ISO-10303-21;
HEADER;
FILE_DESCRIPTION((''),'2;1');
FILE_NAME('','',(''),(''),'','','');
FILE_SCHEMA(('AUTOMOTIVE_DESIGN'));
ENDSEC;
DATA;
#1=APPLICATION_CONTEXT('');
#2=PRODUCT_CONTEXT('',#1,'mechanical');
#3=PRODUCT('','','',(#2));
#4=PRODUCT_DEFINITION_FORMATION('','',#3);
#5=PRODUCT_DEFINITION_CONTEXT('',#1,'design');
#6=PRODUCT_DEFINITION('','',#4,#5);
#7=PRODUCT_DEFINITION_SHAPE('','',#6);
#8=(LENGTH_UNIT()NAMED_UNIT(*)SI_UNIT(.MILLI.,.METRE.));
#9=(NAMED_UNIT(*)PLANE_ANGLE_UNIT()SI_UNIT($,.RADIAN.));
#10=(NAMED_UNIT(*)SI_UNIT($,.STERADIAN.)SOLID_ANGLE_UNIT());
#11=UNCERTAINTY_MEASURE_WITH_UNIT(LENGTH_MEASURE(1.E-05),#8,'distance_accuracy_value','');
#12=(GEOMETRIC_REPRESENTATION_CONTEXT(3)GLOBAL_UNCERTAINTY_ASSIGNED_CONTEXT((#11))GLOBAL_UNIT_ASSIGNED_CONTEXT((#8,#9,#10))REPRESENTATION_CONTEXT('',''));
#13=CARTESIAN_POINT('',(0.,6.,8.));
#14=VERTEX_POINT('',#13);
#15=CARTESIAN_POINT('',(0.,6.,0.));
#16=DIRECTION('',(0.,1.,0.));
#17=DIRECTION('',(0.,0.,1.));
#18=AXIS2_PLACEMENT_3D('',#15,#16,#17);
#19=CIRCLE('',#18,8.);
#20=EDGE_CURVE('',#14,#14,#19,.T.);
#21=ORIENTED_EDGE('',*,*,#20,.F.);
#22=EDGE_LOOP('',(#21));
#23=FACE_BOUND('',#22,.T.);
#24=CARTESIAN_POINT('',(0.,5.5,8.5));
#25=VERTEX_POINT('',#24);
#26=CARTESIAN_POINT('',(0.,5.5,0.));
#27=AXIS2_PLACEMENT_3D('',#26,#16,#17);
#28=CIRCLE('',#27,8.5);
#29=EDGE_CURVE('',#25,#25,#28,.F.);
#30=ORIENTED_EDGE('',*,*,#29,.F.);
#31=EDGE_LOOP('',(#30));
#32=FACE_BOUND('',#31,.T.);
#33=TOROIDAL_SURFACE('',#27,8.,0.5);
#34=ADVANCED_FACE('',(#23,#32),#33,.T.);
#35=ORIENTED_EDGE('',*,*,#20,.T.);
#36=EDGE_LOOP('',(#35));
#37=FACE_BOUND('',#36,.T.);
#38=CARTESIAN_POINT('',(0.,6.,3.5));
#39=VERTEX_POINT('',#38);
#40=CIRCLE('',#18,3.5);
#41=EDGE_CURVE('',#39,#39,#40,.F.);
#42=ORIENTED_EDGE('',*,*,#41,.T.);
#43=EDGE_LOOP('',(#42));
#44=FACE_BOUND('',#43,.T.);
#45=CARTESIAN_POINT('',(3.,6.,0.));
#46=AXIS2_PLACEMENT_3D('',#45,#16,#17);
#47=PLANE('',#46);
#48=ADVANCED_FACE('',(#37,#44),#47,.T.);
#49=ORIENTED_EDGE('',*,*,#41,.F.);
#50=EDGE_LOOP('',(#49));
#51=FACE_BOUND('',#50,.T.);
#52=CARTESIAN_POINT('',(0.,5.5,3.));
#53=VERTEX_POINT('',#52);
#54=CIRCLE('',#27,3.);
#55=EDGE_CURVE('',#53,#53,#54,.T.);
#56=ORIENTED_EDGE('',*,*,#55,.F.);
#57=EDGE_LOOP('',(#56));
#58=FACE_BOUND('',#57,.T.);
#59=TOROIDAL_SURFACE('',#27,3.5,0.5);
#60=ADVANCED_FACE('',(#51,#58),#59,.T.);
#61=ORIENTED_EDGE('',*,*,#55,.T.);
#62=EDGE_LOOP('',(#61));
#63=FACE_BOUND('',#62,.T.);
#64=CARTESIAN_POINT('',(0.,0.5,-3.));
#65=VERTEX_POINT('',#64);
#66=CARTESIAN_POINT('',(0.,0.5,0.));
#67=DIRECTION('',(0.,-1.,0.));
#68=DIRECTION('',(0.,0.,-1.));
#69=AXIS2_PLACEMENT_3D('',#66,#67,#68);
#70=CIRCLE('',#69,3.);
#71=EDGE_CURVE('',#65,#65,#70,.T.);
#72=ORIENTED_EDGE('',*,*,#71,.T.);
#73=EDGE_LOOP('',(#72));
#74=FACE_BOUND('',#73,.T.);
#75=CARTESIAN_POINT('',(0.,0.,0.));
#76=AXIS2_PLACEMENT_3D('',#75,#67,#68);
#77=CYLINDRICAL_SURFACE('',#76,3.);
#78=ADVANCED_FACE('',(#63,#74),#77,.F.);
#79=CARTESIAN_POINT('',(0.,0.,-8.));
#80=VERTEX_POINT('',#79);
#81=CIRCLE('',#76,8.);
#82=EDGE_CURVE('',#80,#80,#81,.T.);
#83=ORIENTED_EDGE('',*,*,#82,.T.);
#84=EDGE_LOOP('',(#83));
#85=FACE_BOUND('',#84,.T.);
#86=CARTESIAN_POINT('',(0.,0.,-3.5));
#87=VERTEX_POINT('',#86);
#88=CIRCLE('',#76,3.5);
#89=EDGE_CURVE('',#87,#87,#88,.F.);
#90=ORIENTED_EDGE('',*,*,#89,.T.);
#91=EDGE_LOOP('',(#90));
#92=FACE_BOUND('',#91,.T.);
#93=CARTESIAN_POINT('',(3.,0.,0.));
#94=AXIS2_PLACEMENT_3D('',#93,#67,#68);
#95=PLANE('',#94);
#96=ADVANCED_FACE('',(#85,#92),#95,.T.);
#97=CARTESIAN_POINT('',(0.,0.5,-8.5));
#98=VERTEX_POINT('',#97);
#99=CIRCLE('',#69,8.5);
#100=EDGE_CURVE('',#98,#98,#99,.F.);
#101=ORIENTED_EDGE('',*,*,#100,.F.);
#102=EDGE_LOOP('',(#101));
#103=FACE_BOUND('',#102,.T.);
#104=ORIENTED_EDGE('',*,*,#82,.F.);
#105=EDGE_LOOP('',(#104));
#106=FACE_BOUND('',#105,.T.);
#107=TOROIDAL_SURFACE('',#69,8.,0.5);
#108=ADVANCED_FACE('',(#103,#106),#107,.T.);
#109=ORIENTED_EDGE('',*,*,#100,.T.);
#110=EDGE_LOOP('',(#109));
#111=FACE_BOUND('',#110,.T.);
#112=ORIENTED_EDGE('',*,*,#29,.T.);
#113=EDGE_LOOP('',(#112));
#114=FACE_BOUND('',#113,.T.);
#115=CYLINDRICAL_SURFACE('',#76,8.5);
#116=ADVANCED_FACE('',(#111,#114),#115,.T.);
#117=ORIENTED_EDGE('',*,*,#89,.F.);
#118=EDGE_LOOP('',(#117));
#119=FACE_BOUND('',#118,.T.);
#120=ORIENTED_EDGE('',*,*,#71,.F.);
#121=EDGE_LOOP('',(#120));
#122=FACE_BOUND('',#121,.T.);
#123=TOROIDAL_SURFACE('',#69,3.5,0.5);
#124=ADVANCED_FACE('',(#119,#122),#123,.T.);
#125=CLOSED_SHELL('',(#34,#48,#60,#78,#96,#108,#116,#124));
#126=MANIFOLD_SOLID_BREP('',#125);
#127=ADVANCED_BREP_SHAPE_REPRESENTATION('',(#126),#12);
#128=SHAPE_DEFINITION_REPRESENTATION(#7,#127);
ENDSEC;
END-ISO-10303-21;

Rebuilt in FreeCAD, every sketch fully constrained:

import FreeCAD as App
import Part
import Sketcher

V = App.Vector


def edges_at(feature, points):
    """Names of the edges that pass closest to the given points."""
    edges = feature.Shape.Edges
    near = lambda p: min(range(len(edges)), key=lambda i: edges[i].distToShape(Part.Vertex(*p))[0])
    return sorted({f"Edge{near(p) + 1}" for p in points})


def add_polygon(sketch, points):
    """Adds a closed chain of lines whose ends are joined by coincident constraints."""
    first, n = sketch.GeometryCount, len(points)
    for a, b in zip(points, points[1:] + points[:1]):
        sketch.addGeometry(Part.LineSegment(App.Vector(*a, 0), App.Vector(*b, 0)), False)
    for i in range(n):
        sketch.addConstraint(Sketcher.Constraint("Coincident", first + i, 2, first + (i + 1) % n, 1))

doc = App.newDocument("Part")
body = doc.addObject("PartDesign::Body", "Body")

sketch1 = doc.addObject("Sketcher::SketchObject", "Sketch")
body.addObject(sketch1)
sketch1.AttachmentSupport = (doc.XY_Plane, [""])
sketch1.MapMode = "FlatFace"
add_polygon(sketch1, [(3, 6), (3, 0), (8, 0), (8, 6)])
sketch1.addConstraint(Sketcher.Constraint("Vertical", 0))
sketch1.addConstraint(Sketcher.Constraint("Horizontal", 1))
sketch1.addConstraint(Sketcher.Constraint("Vertical", 2))
sketch1.addConstraint(Sketcher.Constraint("Horizontal", 3))
sketch1.addConstraint(Sketcher.Constraint("PointOnObject", 0, 2, -1))
sketch1.addConstraint(Sketcher.Constraint("DistanceY", 0, 2, 0, 1, 6.0))
sketch1.addConstraint(Sketcher.Constraint("DistanceX", 1, 1, 1, 2, 5.5))
sketch1.addConstraint(Sketcher.Constraint("DistanceX", -1, 1, 0, 2, 3.0))
revolution = doc.addObject("PartDesign::Revolution", "Revolution")
body.addObject(revolution)
revolution.Profile = sketch1
revolution.ReferenceAxis = (sketch1, ["V_Axis"])
revolution.Angle = 360
doc.recompute()

fillet = doc.addObject("PartDesign::Fillet", "Fillet")
body.addObject(fillet)
fillet.Base = (revolution, edges_at(revolution, [
    (0, 6, 3),
    (0, 6, 8.5),
    (0, 0, 8.5),
    (0, 0, 3),
]))
fillet.Radius = 0.5

doc.recompute()
